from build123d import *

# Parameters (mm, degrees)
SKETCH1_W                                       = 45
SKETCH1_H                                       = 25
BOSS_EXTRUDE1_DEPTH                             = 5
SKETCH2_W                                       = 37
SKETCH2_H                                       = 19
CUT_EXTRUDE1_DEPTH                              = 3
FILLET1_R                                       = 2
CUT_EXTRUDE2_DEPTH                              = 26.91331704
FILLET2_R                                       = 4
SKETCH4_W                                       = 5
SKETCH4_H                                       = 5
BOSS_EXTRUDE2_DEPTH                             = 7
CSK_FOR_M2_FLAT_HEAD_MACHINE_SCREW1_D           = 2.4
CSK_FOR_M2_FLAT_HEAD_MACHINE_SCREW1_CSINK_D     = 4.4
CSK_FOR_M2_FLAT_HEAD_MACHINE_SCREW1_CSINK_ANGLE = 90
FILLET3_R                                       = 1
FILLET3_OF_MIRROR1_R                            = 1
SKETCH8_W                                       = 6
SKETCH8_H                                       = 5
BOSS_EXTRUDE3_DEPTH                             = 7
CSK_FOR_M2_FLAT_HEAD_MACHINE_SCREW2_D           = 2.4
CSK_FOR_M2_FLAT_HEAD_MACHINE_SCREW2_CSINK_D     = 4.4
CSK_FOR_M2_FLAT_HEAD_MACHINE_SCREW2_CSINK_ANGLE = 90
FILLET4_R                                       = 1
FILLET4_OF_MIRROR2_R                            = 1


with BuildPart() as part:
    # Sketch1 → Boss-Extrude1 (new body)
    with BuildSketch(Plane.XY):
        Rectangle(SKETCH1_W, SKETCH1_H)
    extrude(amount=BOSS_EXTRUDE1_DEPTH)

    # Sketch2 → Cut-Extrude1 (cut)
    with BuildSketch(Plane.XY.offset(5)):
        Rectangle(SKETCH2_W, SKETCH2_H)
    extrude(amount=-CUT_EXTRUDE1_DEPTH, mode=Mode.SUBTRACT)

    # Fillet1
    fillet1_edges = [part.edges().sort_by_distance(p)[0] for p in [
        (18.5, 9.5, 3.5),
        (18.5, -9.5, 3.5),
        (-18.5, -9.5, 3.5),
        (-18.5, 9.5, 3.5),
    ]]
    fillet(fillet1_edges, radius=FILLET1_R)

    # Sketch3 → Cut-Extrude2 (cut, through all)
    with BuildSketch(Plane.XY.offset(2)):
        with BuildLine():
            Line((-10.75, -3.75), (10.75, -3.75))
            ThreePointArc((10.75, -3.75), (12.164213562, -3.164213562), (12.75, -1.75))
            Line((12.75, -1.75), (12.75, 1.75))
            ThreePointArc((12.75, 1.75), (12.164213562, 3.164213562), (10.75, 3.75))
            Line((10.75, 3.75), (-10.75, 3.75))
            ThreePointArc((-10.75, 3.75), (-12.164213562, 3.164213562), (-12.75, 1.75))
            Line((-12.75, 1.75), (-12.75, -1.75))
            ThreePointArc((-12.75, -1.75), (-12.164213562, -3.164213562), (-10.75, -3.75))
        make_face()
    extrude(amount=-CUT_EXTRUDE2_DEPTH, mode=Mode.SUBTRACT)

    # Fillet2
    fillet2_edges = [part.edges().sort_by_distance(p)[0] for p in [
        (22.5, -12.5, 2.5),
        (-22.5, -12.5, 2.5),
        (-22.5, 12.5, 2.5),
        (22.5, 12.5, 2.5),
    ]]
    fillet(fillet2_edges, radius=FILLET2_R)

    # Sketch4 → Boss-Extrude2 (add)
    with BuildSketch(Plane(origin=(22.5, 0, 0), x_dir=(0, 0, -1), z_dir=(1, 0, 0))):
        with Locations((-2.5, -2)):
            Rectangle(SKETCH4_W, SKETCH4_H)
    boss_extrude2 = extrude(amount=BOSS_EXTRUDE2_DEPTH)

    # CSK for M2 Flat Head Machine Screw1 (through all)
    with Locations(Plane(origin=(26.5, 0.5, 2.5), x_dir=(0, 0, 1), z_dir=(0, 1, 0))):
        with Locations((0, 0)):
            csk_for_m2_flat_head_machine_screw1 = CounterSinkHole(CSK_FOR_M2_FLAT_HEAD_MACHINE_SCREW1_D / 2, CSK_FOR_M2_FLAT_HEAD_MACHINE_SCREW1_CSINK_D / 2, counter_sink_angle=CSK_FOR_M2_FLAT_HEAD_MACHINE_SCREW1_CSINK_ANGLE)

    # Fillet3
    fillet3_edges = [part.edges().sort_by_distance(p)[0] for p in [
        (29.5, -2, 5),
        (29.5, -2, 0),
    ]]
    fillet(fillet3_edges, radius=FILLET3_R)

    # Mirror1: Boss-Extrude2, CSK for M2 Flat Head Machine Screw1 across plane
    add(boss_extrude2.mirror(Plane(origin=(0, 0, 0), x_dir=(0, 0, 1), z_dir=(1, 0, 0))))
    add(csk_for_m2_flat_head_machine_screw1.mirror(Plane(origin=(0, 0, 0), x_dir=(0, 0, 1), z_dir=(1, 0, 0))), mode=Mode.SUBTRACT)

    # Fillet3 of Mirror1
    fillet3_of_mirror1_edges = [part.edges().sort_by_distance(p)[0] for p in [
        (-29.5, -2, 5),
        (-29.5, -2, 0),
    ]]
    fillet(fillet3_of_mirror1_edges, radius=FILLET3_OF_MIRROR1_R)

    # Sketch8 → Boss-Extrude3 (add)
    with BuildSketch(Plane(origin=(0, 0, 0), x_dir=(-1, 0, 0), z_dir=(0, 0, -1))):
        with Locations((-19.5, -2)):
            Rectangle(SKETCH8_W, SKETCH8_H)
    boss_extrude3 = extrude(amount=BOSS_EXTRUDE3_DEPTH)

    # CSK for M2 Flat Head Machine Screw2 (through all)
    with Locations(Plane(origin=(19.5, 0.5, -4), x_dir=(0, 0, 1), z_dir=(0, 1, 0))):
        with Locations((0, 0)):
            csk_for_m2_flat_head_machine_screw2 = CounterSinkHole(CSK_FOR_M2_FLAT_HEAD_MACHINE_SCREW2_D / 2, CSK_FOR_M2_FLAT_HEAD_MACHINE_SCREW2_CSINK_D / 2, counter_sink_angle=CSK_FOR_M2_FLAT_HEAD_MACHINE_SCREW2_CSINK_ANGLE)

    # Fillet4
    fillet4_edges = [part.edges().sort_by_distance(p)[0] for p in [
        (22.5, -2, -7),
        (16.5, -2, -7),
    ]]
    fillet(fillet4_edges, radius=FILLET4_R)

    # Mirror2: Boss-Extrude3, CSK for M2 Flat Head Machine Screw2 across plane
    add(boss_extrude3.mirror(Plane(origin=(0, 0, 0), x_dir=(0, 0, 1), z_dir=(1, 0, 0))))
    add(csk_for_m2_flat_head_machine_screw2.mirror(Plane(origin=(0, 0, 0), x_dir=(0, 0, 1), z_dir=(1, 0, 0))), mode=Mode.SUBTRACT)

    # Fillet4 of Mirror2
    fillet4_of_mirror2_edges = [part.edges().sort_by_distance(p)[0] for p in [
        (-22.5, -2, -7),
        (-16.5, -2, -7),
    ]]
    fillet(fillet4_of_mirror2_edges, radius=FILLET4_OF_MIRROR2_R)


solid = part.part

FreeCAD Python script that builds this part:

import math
import FreeCAD as App
import Part
import Sketcher
Q = App.Units.Quantity


def edges_at(feature, points):
    """Names of the edges that pass closest to the given points."""
    edges = feature.Shape.Edges
    near = lambda p: min(range(len(edges)), key=lambda i: edges[i].distToShape(Part.Vertex(*p))[0])
    return sorted({f"Edge{near(p) + 1}" for p in points})

doc = App.newDocument("Part")
body = doc.addObject("PartDesign::Body", "Body")

# Sketch on XY plane
sketch1 = body.newObject("Sketcher::SketchObject", "Sketch")
sketch1.AttachmentSupport = (doc.getObject("XY_Plane"), [""])
sketch1.MapMode = "FlatFace"
sketch1.addGeometry(Part.LineSegment(App.Vector(-22, 12, 0), App.Vector(-22, -12, 0)), False)
sketch1.addGeometry(Part.LineSegment(App.Vector(-22, -12, 0), App.Vector(22, -12, 0)), False)
sketch1.addGeometry(Part.LineSegment(App.Vector(22, -12, 0), App.Vector(22, 12, 0)), False)
sketch1.addGeometry(Part.LineSegment(App.Vector(22, 12, 0), App.Vector(-22, 12, 0)), False)
sketch1.addConstraint(Sketcher.Constraint("Coincident", 0, 2, 1, 1))
sketch1.addConstraint(Sketcher.Constraint("Coincident", 1, 2, 2, 1))
sketch1.addConstraint(Sketcher.Constraint("Coincident", 2, 2, 3, 1))
sketch1.addConstraint(Sketcher.Constraint("Coincident", 3, 2, 0, 1))
sketch1.addConstraint(Sketcher.Constraint("Vertical", 0))
sketch1.addConstraint(Sketcher.Constraint("Horizontal", 1))
sketch1.addConstraint(Sketcher.Constraint("Vertical", 2))
sketch1.addConstraint(Sketcher.Constraint("Horizontal", 3))
sketch1.addConstraint(Sketcher.Constraint("Symmetric", 0, 2, 2, 2, -1, 1))
sketch1.addConstraint(Sketcher.Constraint("DistanceX", 1, 1, 1, 2, Q("45 mm")))
sketch1.addConstraint(Sketcher.Constraint("DistanceY", 0, 2, 0, 1, Q("25 mm")))
pad1 = body.newObject("PartDesign::Pad", "Pad")
pad1.Profile = sketch1
pad1.Length = 5

# Sketch on XY plane
sketch2 = body.newObject("Sketcher::SketchObject", "Sketch001")
sketch2.AttachmentSupport = (doc.getObject("XY_Plane"), [""])
sketch2.MapMode = "FlatFace"
sketch2.AttachmentOffset = App.Placement(App.Vector(0, 0, 5), App.Rotation())
sketch2.addGeometry(Part.LineSegment(App.Vector(-18, 10, 0), App.Vector(-18, -10, 0)), False)
sketch2.addGeometry(Part.LineSegment(App.Vector(-18, -10, 0), App.Vector(18, -10, 0)), False)
sketch2.addGeometry(Part.LineSegment(App.Vector(18, -10, 0), App.Vector(18, 10, 0)), False)
sketch2.addGeometry(Part.LineSegment(App.Vector(18, 10, 0), App.Vector(-18, 10, 0)), False)
sketch2.addConstraint(Sketcher.Constraint("Coincident", 0, 2, 1, 1))
sketch2.addConstraint(Sketcher.Constraint("Coincident", 1, 2, 2, 1))
sketch2.addConstraint(Sketcher.Constraint("Coincident", 2, 2, 3, 1))
sketch2.addConstraint(Sketcher.Constraint("Coincident", 3, 2, 0, 1))
sketch2.addConstraint(Sketcher.Constraint("Vertical", 0))
sketch2.addConstraint(Sketcher.Constraint("Horizontal", 1))
sketch2.addConstraint(Sketcher.Constraint("Vertical", 2))
sketch2.addConstraint(Sketcher.Constraint("Horizontal", 3))
sketch2.addConstraint(Sketcher.Constraint("Symmetric", 0, 2, 2, 2, -1, 1))
sketch2.addConstraint(Sketcher.Constraint("DistanceX", 1, 1, 1, 2, Q("37 mm")))
sketch2.addConstraint(Sketcher.Constraint("DistanceY", 0, 2, 0, 1, Q("19 mm")))
pocket1 = body.newObject("PartDesign::Pocket", "Pocket")
pocket1.Profile = sketch2
pocket1.Length = 3
doc.recompute()

fillet = body.newObject("PartDesign::Fillet", "Fillet")
fillet.Base = (pocket1, edges_at(pocket1, [
    (18.5, 9.5, 3.5),
    (18.5, -9.5, 3.5),
    (-18.5, -9.5, 3.5),
    (-18.5, 9.5, 3.5),
]))
fillet.Radius = 2

# Sketch on XY plane
sketch3 = body.newObject("Sketcher::SketchObject", "Sketch002")
sketch3.AttachmentSupport = (doc.getObject("XY_Plane"), [""])
sketch3.MapMode = "FlatFace"
sketch3.AttachmentOffset = App.Placement(App.Vector(0, 0, 2), App.Rotation())
sketch3.addGeometry(Part.LineSegment(App.Vector(-10.8, -3.8, 0), App.Vector(10.8, -3.8, 0)), False)
sketch3.addGeometry(Part.ArcOfCircle(Part.Circle(App.Vector(10.7, -1.7, 0), App.Vector(0, 0, 1), 2), math.radians(-90), math.radians(0)), False)
sketch3.addGeometry(Part.LineSegment(App.Vector(12.8, -1.8, 0), App.Vector(12.8, 1.8, 0)), False)
sketch3.addGeometry(Part.ArcOfCircle(Part.Circle(App.Vector(10.7, 1.7, 0), App.Vector(0, 0, 1), 2), math.radians(0), math.radians(90)), False)
sketch3.addGeometry(Part.LineSegment(App.Vector(10.8, 3.8, 0), App.Vector(-10.8, 3.8, 0)), False)
sketch3.addGeometry(Part.ArcOfCircle(Part.Circle(App.Vector(-10.7, 1.7, 0), App.Vector(0, 0, 1), 2), math.radians(90), math.radians(180)), False)
sketch3.addGeometry(Part.LineSegment(App.Vector(-12.8, 1.8, 0), App.Vector(-12.8, -1.8, 0)), False)
sketch3.addGeometry(Part.ArcOfCircle(Part.Circle(App.Vector(-10.7, -1.7, 0), App.Vector(0, 0, 1), 2), math.radians(-180), math.radians(-90)), False)
sketch3.addConstraint(Sketcher.Constraint("Tangent", 0, 2, 1, 1))
sketch3.addConstraint(Sketcher.Constraint("Tangent", 1, 2, 2, 1))
sketch3.addConstraint(Sketcher.Constraint("Tangent", 2, 2, 3, 1))
sketch3.addConstraint(Sketcher.Constraint("Tangent", 3, 2, 4, 1))
sketch3.addConstraint(Sketcher.Constraint("Tangent", 4, 2, 5, 1))
sketch3.addConstraint(Sketcher.Constraint("Tangent", 5, 2, 6, 1))
sketch3.addConstraint(Sketcher.Constraint("Tangent", 6, 2, 7, 1))
sketch3.addConstraint(Sketcher.Constraint("Tangent", 7, 2, 0, 1))
sketch3.addConstraint(Sketcher.Constraint("Horizontal", 0))
sketch3.addConstraint(Sketcher.Constraint("Vertical", 2))
sketch3.addConstraint(Sketcher.Constraint("Horizontal", 4))
sketch3.addConstraint(Sketcher.Constraint("Vertical", 6))
sketch3.addConstraint(Sketcher.Constraint("Equal", 1, 3))
sketch3.addConstraint(Sketcher.Constraint("Equal", 3, 5))
sketch3.addConstraint(Sketcher.Constraint("Equal", 5, 7))
sketch3.addConstraint(Sketcher.Constraint("Symmetric", 1, 3, 5, 3, -1, 1))
sketch3.addConstraint(Sketcher.Constraint("Radius", 1, Q("2 mm")))
sketch3.addConstraint(Sketcher.Constraint("DistanceX", 0, 1, 0, 2, Q("21.5 mm")))
sketch3.addConstraint(Sketcher.Constraint("DistanceY", 2, 1, 2, 2, Q("3.5 mm")))
pocket2 = body.newObject("PartDesign::Pocket", "Pocket001")
pocket2.Profile = sketch3
pocket2.Type = "ThroughAll"
doc.recompute()

fillet2 = body.newObject("PartDesign::Fillet", "Fillet001")
fillet2.Base = (pocket2, edges_at(pocket2, [
    (22.5, -12.5, 2.5),
    (-22.5, -12.5, 2.5),
    (-22.5, 12.5, 2.5),
    (22.5, 12.5, 2.5),
]))
fillet2.Radius = 4

# Sketch on YZ plane
sketch4 = body.newObject("Sketcher::SketchObject", "Sketch003")
sketch4.AttachmentSupport = (doc.getObject("YZ_Plane"), [""])
sketch4.MapMode = "FlatFace"
sketch4.AttachmentOffset = App.Placement(App.Vector(0, 0, 22.5), App.Rotation())
sketch4.addGeometry(Part.LineSegment(App.Vector(0, 5, 0), App.Vector(-4, 5, 0)), False)
sketch4.addGeometry(Part.LineSegment(App.Vector(-4, 5, 0), App.Vector(-4, 0, 0)), False)
sketch4.addGeometry(Part.LineSegment(App.Vector(-4, 0, 0), App.Vector(0, 0, 0)), False)
sketch4.addGeometry(Part.LineSegment(App.Vector(0, 0, 0), App.Vector(0, 5, 0)), False)
sketch4.addConstraint(Sketcher.Constraint("Coincident", 0, 2, 1, 1))
sketch4.addConstraint(Sketcher.Constraint("Coincident", 1, 2, 2, 1))
sketch4.addConstraint(Sketcher.Constraint("Coincident", 2, 2, 3, 1))
sketch4.addConstraint(Sketcher.Constraint("Coincident", 3, 2, 0, 1))
sketch4.addConstraint(Sketcher.Constraint("Horizontal", 0))
sketch4.addConstraint(Sketcher.Constraint("Vertical", 1))
sketch4.addConstraint(Sketcher.Constraint("Horizontal", 2))
sketch4.addConstraint(Sketcher.Constraint("Vertical", 3))
sketch4.addConstraint(Sketcher.Constraint("PointOnObject", 1, 2, -1))
sketch4.addConstraint(Sketcher.Constraint("Equal", 2, 1))
sketch4.addConstraint(Sketcher.Constraint("DistanceX", 0, 2, 0, 1, Q("5 mm")))
sketch4.addConstraint(Sketcher.Constraint("DistanceX", 0, 2, -1, 1, Q("4.5 mm")))
pad2 = body.newObject("PartDesign::Pad", "Pad001")
pad2.Profile = sketch4
pad2.Length = 7

# Sketch on XZ plane
sketch5 = body.newObject("Sketcher::SketchObject", "Sketch004")
sketch5.AttachmentSupport = (doc.getObject("XZ_Plane"), [""])
sketch5.MapMode = "FlatFace"
sketch5.AttachmentOffset = App.Placement(App.Vector(0, 0, -0.5), App.Rotation())
sketch5.addGeometry(Part.Circle(App.Vector(26.5, 2.5, 0), App.Vector(0, 0, 1), 1.2), False)
sketch5.addConstraint(Sketcher.Constraint("Diameter", 0, Q("2.4 mm")))
sketch5.addConstraint(Sketcher.Constraint("DistanceX", -1, 1, 0, 3, Q("26.5 mm")))
sketch5.addConstraint(Sketcher.Constraint("DistanceY", -1, 1, 0, 3, Q("2.5 mm")))
doc.recompute()
hole = body.newObject("PartDesign::Hole", "Hole")
hole.Profile = sketch5
hole.ThreadType = "None"
hole.Diameter = 2.4
hole.DepthType = "ThroughAll"
hole.HoleCutType = "Countersink"
hole.HoleCutDiameter = 4.4
hole.HoleCutCountersinkAngle = 90
hole.Reversed = True
doc.recompute()

fillet3 = body.newObject("PartDesign::Fillet", "Fillet002")
fillet3.Base = (hole, edges_at(hole, [(29.5, -2, 5), (29.5, -2, 0)]))
fillet3.Radius = 1
doc.recompute()

mirrored = body.newObject("PartDesign::Mirrored", "Mirrored")
mirrored.Originals = [pad2, hole]
mirrored.MirrorPlane = (doc.getObject("YZ_Plane"), [""])
body.Tip = mirrored
doc.recompute()

fillet4 = body.newObject("PartDesign::Fillet", "Fillet003")
fillet4.Base = (mirrored, edges_at(mirrored, [(-29.5, -2, 5), (-29.5, -2, 0)]))
fillet4.Radius = 1

# Sketch on XY plane
sketch6 = body.newObject("Sketcher::SketchObject", "Sketch005")
sketch6.AttachmentSupport = (doc.getObject("XY_Plane"), [""])
sketch6.MapMode = "FlatFace"
sketch6.addGeometry(Part.LineSegment(App.Vector(22, 0, 0), App.Vector(22, -4, 0)), False)
sketch6.addGeometry(Part.LineSegment(App.Vector(22, -4, 0), App.Vector(16, -4, 0)), False)
sketch6.addGeometry(Part.LineSegment(App.Vector(16, -4, 0), App.Vector(16, 0, 0)), False)
sketch6.addGeometry(Part.LineSegment(App.Vector(16, 0, 0), App.Vector(22, 0, 0)), False)
sketch6.addConstraint(Sketcher.Constraint("Coincident", 0, 2, 1, 1))
sketch6.addConstraint(Sketcher.Constraint("Coincident", 1, 2, 2, 1))
sketch6.addConstraint(Sketcher.Constraint("Coincident", 2, 2, 3, 1))
sketch6.addConstraint(Sketcher.Constraint("Coincident", 3, 2, 0, 1))
sketch6.addConstraint(Sketcher.Constraint("Vertical", 0))
sketch6.addConstraint(Sketcher.Constraint("Horizontal", 1))
sketch6.addConstraint(Sketcher.Constraint("Vertical", 2))
sketch6.addConstraint(Sketcher.Constraint("Horizontal", 3))
sketch6.addConstraint(Sketcher.Constraint("DistanceX", 1, 2, 1, 1, Q("6 mm")))
sketch6.addConstraint(Sketcher.Constraint("DistanceY", 0, 2, 0, 1, Q("5 mm")))
sketch6.addConstraint(Sketcher.Constraint("DistanceX", -1, 1, 0, 2, Q("22.5 mm")))
sketch6.addConstraint(Sketcher.Constraint("DistanceY", 0, 2, -1, 1, Q("4.5 mm")))
pad3 = body.newObject("PartDesign::Pad", "Pad002")
pad3.Profile = sketch6
pad3.Length = 7
pad3.Reversed = True

# Sketch on XZ plane
sketch7 = body.newObject("Sketcher::SketchObject", "Sketch006")
sketch7.AttachmentSupport = (doc.getObject("XZ_Plane"), [""])
sketch7.MapMode = "FlatFace"
sketch7.AttachmentOffset = App.Placement(App.Vector(0, 0, -0.5), App.Rotation())
sketch7.addGeometry(Part.Circle(App.Vector(19.5, -4, 0), App.Vector(0, 0, 1), 1.2), False)
sketch7.addConstraint(Sketcher.Constraint("Diameter", 0, Q("2.4 mm")))
sketch7.addConstraint(Sketcher.Constraint("DistanceY", 0, 3, -1, 1, Q("4 mm")))
sketch7.addConstraint(Sketcher.Constraint("DistanceX", -1, 1, 0, 3, Q("19.5 mm")))
doc.recompute()
hole2 = body.newObject("PartDesign::Hole", "Hole001")
hole2.Profile = sketch7
hole2.ThreadType = "None"
hole2.Diameter = 2.4
hole2.DepthType = "ThroughAll"
hole2.HoleCutType = "Countersink"
hole2.HoleCutDiameter = 4.4
hole2.HoleCutCountersinkAngle = 90
hole2.Reversed = True
doc.recompute()

fillet5 = body.newObject("PartDesign::Fillet", "Fillet004")
fillet5.Base = (hole2, edges_at(hole2, [(22.5, -2, -7), (16.5, -2, -7)]))
fillet5.Radius = 1
doc.recompute()

mirrored2 = body.newObject("PartDesign::Mirrored", "Mirrored001")
mirrored2.Originals = [pad3, hole2]
mirrored2.MirrorPlane = (doc.getObject("YZ_Plane"), [""])
body.Tip = mirrored2
doc.recompute()

fillet6 = body.newObject("PartDesign::Fillet", "Fillet005")
fillet6.Base = (mirrored2, edges_at(mirrored2, [(-22.5, -2, -7), (-16.5, -2, -7)]))
fillet6.Radius = 1

doc.recompute()
